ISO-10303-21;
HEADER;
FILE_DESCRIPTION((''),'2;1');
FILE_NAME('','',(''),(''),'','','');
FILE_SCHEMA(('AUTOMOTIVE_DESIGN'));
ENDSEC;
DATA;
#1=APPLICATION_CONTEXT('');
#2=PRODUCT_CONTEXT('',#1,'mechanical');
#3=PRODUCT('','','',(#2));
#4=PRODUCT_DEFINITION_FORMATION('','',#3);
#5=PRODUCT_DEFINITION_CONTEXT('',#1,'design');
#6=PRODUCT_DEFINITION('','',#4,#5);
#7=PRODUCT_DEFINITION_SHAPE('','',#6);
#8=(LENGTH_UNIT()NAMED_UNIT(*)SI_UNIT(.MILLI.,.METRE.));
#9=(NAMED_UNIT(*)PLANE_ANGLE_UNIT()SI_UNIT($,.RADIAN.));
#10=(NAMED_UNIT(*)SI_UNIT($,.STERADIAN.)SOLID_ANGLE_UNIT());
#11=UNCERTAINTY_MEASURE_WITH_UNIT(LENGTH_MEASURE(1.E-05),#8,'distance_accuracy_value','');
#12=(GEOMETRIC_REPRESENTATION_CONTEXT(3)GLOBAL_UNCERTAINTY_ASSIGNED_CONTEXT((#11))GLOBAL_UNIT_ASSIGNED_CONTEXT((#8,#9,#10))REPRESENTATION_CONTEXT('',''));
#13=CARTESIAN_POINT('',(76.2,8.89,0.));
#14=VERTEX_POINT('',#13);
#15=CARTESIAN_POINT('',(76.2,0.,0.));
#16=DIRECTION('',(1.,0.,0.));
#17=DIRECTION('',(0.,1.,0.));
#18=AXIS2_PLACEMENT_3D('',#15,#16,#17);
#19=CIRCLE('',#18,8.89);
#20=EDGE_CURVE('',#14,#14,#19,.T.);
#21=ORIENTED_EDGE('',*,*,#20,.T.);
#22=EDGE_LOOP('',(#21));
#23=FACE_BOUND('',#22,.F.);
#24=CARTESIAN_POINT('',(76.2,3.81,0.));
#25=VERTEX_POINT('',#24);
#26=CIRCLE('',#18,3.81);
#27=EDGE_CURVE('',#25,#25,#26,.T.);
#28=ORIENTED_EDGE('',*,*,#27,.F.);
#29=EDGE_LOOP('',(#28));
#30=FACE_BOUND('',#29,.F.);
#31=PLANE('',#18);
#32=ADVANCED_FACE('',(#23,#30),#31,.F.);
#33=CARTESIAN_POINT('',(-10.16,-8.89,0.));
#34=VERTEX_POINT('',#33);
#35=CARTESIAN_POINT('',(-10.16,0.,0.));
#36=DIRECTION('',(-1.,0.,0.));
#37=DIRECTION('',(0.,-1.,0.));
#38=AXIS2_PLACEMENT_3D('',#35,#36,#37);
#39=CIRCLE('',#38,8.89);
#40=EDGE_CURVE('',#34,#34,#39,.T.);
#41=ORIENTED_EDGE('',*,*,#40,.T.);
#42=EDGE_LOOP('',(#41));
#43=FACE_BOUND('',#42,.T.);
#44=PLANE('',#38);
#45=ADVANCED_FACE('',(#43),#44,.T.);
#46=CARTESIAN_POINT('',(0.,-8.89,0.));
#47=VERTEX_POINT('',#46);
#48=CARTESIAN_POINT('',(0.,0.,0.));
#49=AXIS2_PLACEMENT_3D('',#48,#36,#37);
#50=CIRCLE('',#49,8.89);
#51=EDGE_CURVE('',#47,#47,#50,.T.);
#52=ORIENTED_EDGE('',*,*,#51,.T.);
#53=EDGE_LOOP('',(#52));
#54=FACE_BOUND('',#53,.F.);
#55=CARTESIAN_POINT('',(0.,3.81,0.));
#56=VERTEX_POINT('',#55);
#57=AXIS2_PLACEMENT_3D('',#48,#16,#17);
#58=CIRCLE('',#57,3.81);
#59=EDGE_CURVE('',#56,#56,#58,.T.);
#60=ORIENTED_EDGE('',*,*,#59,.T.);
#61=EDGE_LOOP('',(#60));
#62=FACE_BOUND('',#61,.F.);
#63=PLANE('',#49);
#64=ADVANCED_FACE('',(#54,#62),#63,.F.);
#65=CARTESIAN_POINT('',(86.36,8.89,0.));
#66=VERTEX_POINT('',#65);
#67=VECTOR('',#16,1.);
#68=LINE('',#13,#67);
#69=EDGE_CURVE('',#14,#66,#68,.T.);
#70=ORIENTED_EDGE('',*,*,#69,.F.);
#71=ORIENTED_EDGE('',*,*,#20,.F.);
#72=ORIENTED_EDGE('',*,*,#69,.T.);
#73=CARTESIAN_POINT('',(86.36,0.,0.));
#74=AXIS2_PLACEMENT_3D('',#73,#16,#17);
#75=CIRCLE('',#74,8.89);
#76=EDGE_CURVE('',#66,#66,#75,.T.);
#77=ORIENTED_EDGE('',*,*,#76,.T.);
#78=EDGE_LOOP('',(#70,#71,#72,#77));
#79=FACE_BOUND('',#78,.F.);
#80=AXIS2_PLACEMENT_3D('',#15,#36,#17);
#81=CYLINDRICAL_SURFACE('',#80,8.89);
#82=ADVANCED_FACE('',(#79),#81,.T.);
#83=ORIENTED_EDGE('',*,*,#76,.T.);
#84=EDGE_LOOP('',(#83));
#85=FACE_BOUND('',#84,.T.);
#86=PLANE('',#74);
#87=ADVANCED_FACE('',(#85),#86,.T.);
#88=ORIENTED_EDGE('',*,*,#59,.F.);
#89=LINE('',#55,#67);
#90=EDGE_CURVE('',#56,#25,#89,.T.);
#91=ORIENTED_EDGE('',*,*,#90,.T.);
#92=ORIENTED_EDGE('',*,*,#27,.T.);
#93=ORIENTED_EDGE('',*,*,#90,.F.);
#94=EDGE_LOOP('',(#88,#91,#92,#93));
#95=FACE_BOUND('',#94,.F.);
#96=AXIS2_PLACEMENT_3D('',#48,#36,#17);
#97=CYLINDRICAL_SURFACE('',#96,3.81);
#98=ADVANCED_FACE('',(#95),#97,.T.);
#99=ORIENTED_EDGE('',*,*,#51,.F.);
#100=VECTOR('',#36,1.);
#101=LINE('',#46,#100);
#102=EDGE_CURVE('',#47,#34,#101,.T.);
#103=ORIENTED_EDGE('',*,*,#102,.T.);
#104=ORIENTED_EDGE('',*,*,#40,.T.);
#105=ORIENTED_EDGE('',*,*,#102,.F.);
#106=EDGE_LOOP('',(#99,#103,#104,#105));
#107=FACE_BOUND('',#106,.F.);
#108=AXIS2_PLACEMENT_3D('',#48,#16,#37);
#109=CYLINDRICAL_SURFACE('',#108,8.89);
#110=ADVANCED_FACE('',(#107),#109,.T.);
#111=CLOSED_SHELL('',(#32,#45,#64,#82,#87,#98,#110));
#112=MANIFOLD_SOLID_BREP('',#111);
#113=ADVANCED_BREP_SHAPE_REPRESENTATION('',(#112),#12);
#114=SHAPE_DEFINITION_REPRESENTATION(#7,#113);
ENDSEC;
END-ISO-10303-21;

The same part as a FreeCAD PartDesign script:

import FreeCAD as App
import Part
import Sketcher
from FreeCAD import Vector
Q = App.Units.Quantity

doc = App.newDocument("Part")
body = doc.addObject("PartDesign::Body", "Body")

sketch1 = body.newObject("Sketcher::SketchObject", "Sketch")
sketch1.AttachmentSupport = (doc.getObject("YZ_Plane"), [""])
sketch1.MapMode = "FlatFace"
sketch1.addGeometry(Part.Circle(Vector(0, 0, 0), Vector(0, 0, 1), 3.8), False)
sketch1.addConstraint([
    Sketcher.Constraint("Coincident", 0, 3, -1, 1),
    Sketcher.Constraint("Diameter", 0, Q("0.3 in")),
])
pad1 = body.newObject("PartDesign::Pad", "Pad")
pad1.Profile = sketch1
pad1.Length = Q("3 in")

sketch2 = body.newObject("Sketcher::SketchObject", "Sketch001")
sketch2.AttachmentSupport = (doc.getObject("YZ_Plane"), [""])
sketch2.MapMode = "FlatFace"
sketch2.addGeometry(Part.Circle(Vector(0, 0, 0), Vector(0, 0, 1), 9), False)
sketch2.addConstraint([
    Sketcher.Constraint("Coincident", 0, 3, -1, 1),
    Sketcher.Constraint("Diameter", 0, Q("0.7 in")),
])
pad2 = body.newObject("PartDesign::Pad", "Pad001")
pad2.Profile = sketch2
pad2.Length = Q("0.4 in")
pad2.Reversed = True

sketch3 = body.newObject("Sketcher::SketchObject", "Sketch002")
sketch3.AttachmentSupport = (doc.getObject("YZ_Plane"), [""])
sketch3.MapMode = "FlatFace"
sketch3.AttachmentOffset = App.Placement(Vector(0, 0, 3 * 25.4), App.Rotation())
sketch3.addGeometry(Part.Circle(Vector(0, 0, 0), Vector(0, 0, 1), 9), False)
sketch3.addConstraint([
    Sketcher.Constraint("Coincident", 0, 3, -1, 1),
    Sketcher.Constraint("Diameter", 0, Q("0.7 in")),
])
pad3 = body.newObject("PartDesign::Pad", "Pad002")
pad3.Profile = sketch3
pad3.Length = Q("0.4 in")

doc.recompute()
